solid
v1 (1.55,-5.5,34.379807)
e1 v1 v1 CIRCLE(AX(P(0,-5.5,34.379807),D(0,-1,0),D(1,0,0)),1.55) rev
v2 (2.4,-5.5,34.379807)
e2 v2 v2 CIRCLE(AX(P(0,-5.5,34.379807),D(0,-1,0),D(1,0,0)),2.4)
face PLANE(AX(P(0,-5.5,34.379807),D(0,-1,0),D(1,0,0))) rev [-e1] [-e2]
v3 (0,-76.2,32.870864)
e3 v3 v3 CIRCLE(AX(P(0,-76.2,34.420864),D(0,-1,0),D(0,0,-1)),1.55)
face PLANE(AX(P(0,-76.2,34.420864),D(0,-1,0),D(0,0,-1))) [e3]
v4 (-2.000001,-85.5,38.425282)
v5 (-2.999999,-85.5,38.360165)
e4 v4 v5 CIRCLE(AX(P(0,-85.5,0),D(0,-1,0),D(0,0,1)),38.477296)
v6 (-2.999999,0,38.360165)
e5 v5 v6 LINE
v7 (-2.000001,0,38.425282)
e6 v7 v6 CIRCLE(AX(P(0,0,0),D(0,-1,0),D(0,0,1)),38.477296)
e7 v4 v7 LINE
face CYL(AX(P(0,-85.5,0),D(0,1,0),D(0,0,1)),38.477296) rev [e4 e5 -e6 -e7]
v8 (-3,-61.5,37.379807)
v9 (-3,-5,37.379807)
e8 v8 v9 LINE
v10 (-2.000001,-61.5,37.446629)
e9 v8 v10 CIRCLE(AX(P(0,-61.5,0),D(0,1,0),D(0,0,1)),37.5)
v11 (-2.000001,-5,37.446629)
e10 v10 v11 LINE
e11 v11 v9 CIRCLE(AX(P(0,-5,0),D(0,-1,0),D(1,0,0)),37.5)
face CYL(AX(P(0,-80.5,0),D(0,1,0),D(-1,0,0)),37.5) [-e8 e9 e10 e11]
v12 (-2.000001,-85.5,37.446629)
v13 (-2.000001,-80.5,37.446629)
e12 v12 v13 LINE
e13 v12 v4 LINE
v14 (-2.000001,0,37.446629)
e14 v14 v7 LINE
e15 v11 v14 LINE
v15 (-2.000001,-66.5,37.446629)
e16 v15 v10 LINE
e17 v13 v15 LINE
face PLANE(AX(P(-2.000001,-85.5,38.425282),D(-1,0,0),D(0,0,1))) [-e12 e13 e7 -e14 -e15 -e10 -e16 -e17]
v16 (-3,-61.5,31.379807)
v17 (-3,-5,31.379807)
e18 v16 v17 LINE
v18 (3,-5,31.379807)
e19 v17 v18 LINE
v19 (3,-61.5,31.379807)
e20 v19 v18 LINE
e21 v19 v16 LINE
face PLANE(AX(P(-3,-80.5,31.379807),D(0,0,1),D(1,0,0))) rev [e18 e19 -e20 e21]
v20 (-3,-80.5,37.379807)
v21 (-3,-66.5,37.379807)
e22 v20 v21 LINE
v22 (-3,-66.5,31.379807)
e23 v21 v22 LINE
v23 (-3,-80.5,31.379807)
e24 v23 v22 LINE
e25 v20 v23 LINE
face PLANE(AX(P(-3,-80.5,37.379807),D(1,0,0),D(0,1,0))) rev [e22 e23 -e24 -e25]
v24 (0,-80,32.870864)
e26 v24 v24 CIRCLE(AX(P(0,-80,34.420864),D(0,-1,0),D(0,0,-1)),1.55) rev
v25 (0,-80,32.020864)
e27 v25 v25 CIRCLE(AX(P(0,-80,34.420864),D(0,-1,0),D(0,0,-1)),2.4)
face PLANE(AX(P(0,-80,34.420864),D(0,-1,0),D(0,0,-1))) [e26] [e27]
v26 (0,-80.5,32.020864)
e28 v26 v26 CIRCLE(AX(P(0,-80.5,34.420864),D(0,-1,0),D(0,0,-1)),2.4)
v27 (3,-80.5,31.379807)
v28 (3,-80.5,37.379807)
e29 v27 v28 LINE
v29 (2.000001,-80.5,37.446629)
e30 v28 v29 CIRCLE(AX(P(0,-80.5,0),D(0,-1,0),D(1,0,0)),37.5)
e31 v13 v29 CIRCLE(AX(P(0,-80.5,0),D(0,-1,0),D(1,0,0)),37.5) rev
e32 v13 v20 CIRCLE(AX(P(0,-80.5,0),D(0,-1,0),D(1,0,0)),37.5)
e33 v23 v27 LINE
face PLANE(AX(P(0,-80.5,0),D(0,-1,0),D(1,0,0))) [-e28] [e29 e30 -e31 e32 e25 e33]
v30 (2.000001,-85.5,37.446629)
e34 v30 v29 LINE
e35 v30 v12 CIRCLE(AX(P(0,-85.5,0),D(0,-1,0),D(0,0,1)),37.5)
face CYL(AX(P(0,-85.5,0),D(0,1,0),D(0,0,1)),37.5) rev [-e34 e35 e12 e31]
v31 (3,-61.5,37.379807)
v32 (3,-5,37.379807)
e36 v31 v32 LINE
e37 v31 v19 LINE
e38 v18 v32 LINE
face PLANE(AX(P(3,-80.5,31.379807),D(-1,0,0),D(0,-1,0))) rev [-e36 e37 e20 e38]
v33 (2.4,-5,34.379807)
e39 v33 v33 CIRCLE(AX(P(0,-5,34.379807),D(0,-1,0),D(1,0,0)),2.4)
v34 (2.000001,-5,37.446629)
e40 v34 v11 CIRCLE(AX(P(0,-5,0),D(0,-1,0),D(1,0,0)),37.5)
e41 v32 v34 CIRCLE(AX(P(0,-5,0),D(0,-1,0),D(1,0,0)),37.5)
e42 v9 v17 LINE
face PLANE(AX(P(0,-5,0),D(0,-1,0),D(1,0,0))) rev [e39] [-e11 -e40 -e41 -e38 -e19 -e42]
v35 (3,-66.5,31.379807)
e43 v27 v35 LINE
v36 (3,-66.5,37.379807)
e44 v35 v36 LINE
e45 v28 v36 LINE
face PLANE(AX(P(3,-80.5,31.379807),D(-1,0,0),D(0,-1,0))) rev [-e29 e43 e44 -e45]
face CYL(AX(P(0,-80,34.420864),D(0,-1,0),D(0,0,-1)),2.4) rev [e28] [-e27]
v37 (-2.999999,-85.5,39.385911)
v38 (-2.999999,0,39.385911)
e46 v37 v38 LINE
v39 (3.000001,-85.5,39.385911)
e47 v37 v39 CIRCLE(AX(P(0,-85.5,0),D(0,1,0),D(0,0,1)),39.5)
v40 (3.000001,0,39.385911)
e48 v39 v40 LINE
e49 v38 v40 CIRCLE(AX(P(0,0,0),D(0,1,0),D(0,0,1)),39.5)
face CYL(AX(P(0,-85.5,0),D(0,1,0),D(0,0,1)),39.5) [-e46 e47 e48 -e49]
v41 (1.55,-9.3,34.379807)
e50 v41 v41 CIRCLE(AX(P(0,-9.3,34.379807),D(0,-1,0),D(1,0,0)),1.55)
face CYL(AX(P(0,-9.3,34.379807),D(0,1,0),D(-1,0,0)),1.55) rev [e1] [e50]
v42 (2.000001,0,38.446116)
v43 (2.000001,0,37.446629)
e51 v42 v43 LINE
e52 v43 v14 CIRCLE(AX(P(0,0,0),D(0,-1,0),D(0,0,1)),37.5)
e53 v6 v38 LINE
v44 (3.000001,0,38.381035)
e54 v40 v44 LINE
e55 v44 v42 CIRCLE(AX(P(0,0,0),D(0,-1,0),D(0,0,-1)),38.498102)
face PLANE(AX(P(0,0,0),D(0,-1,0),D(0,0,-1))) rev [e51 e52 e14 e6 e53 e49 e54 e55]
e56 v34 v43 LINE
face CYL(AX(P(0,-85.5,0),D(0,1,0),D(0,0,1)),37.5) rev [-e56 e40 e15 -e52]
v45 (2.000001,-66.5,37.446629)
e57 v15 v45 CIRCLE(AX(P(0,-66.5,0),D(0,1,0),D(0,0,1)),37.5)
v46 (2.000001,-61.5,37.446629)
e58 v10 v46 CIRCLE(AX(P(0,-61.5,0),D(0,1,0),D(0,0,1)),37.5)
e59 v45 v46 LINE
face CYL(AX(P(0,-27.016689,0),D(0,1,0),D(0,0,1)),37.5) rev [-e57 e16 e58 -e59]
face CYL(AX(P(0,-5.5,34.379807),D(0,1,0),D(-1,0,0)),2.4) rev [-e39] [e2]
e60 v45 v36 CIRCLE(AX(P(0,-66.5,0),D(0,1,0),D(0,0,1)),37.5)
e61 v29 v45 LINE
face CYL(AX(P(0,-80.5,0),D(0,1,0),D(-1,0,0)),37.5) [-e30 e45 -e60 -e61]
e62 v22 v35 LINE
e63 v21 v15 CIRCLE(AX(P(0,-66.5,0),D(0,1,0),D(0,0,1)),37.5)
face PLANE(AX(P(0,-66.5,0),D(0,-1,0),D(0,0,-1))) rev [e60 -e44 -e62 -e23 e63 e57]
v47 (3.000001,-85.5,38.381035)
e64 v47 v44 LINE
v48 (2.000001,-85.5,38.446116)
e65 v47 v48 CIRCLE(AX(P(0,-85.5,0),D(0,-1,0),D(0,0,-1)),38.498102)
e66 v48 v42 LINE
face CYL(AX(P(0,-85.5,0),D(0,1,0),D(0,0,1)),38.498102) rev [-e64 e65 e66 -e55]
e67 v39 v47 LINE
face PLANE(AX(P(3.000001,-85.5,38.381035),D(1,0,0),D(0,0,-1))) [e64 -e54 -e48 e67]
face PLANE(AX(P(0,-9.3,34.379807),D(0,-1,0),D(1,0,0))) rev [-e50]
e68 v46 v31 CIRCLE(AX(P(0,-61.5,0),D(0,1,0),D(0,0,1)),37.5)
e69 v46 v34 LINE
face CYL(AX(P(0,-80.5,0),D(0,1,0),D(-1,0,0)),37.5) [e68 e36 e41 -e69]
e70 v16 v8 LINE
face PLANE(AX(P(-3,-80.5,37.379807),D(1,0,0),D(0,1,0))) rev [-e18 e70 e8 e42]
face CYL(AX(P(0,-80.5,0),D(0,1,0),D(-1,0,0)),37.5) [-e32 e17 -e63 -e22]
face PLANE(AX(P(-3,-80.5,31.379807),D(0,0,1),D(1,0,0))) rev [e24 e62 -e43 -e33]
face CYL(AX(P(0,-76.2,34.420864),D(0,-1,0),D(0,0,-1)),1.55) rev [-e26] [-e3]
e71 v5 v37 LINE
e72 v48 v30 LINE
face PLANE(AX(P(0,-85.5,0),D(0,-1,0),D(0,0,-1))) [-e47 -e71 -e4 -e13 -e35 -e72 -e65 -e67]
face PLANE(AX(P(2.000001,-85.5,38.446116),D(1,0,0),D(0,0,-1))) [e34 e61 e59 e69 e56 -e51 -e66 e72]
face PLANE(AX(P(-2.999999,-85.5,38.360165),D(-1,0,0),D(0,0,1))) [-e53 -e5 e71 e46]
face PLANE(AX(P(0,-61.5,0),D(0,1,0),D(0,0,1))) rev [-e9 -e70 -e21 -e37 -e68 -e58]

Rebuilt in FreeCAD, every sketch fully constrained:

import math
import FreeCAD as App
import Part
import Sketcher
Q = App.Units.Quantity

doc = App.newDocument("Part")
body = doc.addObject("PartDesign::Body", "Body")

# Sketch on XZ plane
sketch1 = body.newObject("Sketcher::SketchObject", "Sketch")
sketch1.AttachmentSupport = (doc.getObject("XZ_Plane"), [""])
sketch1.MapMode = "FlatFace"
sketch1.AttachmentOffset = App.Placement(App.Vector(0, 0, 5), App.Rotation())
sketch1.addGeometry([
    Part.LineSegment(App.Vector(-3, 37.379807, 0), App.Vector(-3, 31.379807, 0)),
    Part.LineSegment(App.Vector(-3, 31.379807, 0), App.Vector(3, 31.379807, 0)),
    Part.LineSegment(App.Vector(3, 31.379807, 0), App.Vector(3, 37.379807, 0)),
    Part.ArcOfCircle(Part.Circle(App.Vector(0, 0, 0), App.Vector(0, 0, 1), 37.5), math.radians(85.411434), math.radians(94.588566)),
], False)
sketch1.addConstraint([
    Sketcher.Constraint("Coincident", 0, 2, 1, 1),
    Sketcher.Constraint("Coincident", 1, 2, 2, 1),
    Sketcher.Constraint("Coincident", 2, 2, 3, 1),
    Sketcher.Constraint("Coincident", 3, 2, 0, 1),
    Sketcher.Constraint("Vertical", 0),
    Sketcher.Constraint("Horizontal", 1),
    Sketcher.Constraint("Vertical", 2),
    Sketcher.Constraint("Coincident", 3, 3, -1, 1),
    Sketcher.Constraint("Horizontal", 2, 2, 3, 2),
    Sketcher.Constraint("Equal", 1, 0),
    Sketcher.Constraint("Radius", 3, Q("37.5 mm")),
    Sketcher.Constraint("DistanceX", 1, 1, 1, 2, Q("6 mm")),
])
pad1 = body.newObject("PartDesign::Pad", "Pad")
pad1.Profile = sketch1
pad1.Length = 75.5

# Sketch on XZ plane
sketch2 = body.newObject("Sketcher::SketchObject", "Sketch001")
sketch2.AttachmentSupport = (doc.getObject("XZ_Plane"), [""])
sketch2.MapMode = "FlatFace"
sketch2.addGeometry([
    Part.LineSegment(App.Vector(-2.999999, 38.360165, 0), App.Vector(-2.999999, 39.385911, 0)),  # 0
    Part.ArcOfCircle(Part.Circle(App.Vector(0, 0, 0), App.Vector(0, 0, 1), 39.5), math.radians(85.644226), math.radians(94.355771)),  # 1
    Part.LineSegment(App.Vector(3.000001, 39.385911, 0), App.Vector(3.000001, 38.381035, 0)),  # 2
    Part.ArcOfCircle(Part.Circle(App.Vector(0, -0.000001, 0), App.Vector(0, 0, 1), 38.498103), math.radians(85.530641), math.radians(87.022107)),  # 3
    Part.LineSegment(App.Vector(2.000001, 38.446116, 0), App.Vector(2.000001, 37.446629, 0)),  # 4
    Part.ArcOfCircle(Part.Circle(App.Vector(0, 0, 0), App.Vector(0, 0, 1), 37.5), math.radians(86.942773), math.radians(93.057227)),  # 5
    Part.LineSegment(App.Vector(-2.000001, 37.446629, 0), App.Vector(-2.000001, 38.425282, 0)),  # 6
    Part.ArcOfCircle(Part.Circle(App.Vector(0.000001, -0.000008, 0), App.Vector(0, 0, 1), 38.477303), math.radians(92.979505), math.radians(94.471777)),  # 7
], False)
sketch2.addConstraint([
    Sketcher.Constraint("Coincident", 0, 2, 1, 2),
    Sketcher.Constraint("Coincident", 1, 1, 2, 1),
    Sketcher.Constraint("Coincident", 2, 2, 3, 1),
    Sketcher.Constraint("Coincident", 3, 2, 4, 1),
    Sketcher.Constraint("Coincident", 4, 2, 5, 1),
    Sketcher.Constraint("Coincident", 5, 2, 6, 1),
    Sketcher.Constraint("Coincident", 6, 2, 7, 1),
    Sketcher.Constraint("Coincident", 7, 2, 0, 1),
    Sketcher.Constraint("Vertical", 0),
    Sketcher.Constraint("Vertical", 2),
    Sketcher.Constraint("Vertical", 4),
    Sketcher.Constraint("Vertical", 6),
    Sketcher.Constraint("Coincident", 1, 3, -1, 1),
    Sketcher.Constraint("Coincident", 3, 3, -1, 1),
    Sketcher.Constraint("Coincident", 5, 3, -1, 1),
    Sketcher.Constraint("Coincident", 7, 3, -1, 1),
    Sketcher.Constraint("Horizontal", 0, 2, 1, 1),
    Sketcher.Constraint("Horizontal", 4, 2, 5, 2),
    Sketcher.Constraint("Radius", 1, Q("39.5 mm")),
    Sketcher.Constraint("Radius", 5, Q("37.5 mm")),
    Sketcher.Constraint("DistanceX", 0, 2, -1, 1, Q("2.999999 mm")),
    Sketcher.Constraint("DistanceX", -1, 1, 3, 2, Q("2.000001 mm")),
    Sketcher.Constraint("Radius", 3, Q("38.498103 mm")),
    Sketcher.Constraint("Radius", 7, Q("38.477303 mm")),
])
pad2 = body.newObject("PartDesign::Pad", "Pad001")
pad2.Profile = sketch2
pad2.Length = 85.5

# Sketch on YZ plane
sketch3 = body.newObject("Sketcher::SketchObject", "Sketch002")
sketch3.AttachmentSupport = (doc.getObject("YZ_Plane"), [""])
sketch3.MapMode = "FlatFace"
sketch3.addGeometry([
    Part.LineSegment(App.Vector(-61.5, 37.5, 0), App.Vector(-66.5, 37.5, 0)),
    Part.LineSegment(App.Vector(-66.5, 37.5, 0), App.Vector(-66.5, 0, 0)),
    Part.LineSegment(App.Vector(-66.5, 0, 0), App.Vector(-61.5, 0, 0)),
    Part.LineSegment(App.Vector(-61.5, 0, 0), App.Vector(-61.5, 37.5, 0)),
], False)
sketch3.addConstraint([
    Sketcher.Constraint("Coincident", 0, 2, 1, 1),
    Sketcher.Constraint("Coincident", 1, 2, 2, 1),
    Sketcher.Constraint("Coincident", 2, 2, 3, 1),
    Sketcher.Constraint("Coincident", 3, 2, 0, 1),
    Sketcher.Constraint("Horizontal", 0),
    Sketcher.Constraint("Vertical", 1),
    Sketcher.Constraint("Horizontal", 2),
    Sketcher.Constraint("Vertical", 3),
    Sketcher.Constraint("PointOnObject", 1, 2, -1),
    Sketcher.Constraint("DistanceX", 0, 2, 0, 1, Q("5 mm")),
    Sketcher.Constraint("DistanceY", 1, 2, 1, 1, Q("37.5 mm")),
    Sketcher.Constraint("DistanceX", 0, 2, -1, 1, Q("66.5 mm")),
])
groove = body.newObject("PartDesign::Groove", "Groove")
groove.Profile = sketch3
groove.ReferenceAxis = (sketch3, ["H_Axis"])
groove.Angle = 360

# Sketch on XZ plane
sketch4 = body.newObject("Sketcher::SketchObject", "Sketch003")
sketch4.AttachmentSupport = (doc.getObject("XZ_Plane"), [""])
sketch4.MapMode = "FlatFace"
sketch4.AttachmentOffset = App.Placement(App.Vector(0, 0, 80.5), App.Rotation())
sketch4.addGeometry(Part.Circle(App.Vector(0, 34.420864, 0), App.Vector(0, 0, 1), 1.55), False)
sketch4.addConstraint([
    Sketcher.Constraint("PointOnObject", 0, 3, -2),
    Sketcher.Constraint("Diameter", 0, Q("3.1 mm")),
    Sketcher.Constraint("DistanceY", -1, 1, 0, 3, Q("34.420864 mm")),
])
pocket1 = body.newObject("PartDesign::Pocket", "Pocket")
pocket1.Profile = sketch4
pocket1.Length = 4.3

# Sketch on XZ plane
sketch5 = body.newObject("Sketcher::SketchObject", "Sketch004")
sketch5.AttachmentSupport = (doc.getObject("XZ_Plane"), [""])
sketch5.MapMode = "FlatFace"
sketch5.AttachmentOffset = App.Placement(App.Vector(0, 0, 80.5), App.Rotation())
sketch5.addGeometry(Part.Circle(App.Vector(0, 34.420864, 0), App.Vector(0, 0, 1), 2.4), False)
sketch5.addConstraint([
    Sketcher.Constraint("PointOnObject", 0, 3, -2),
    Sketcher.Constraint("Diameter", 0, Q("4.8 mm")),
    Sketcher.Constraint("DistanceY", -1, 1, 0, 3, Q("34.420864 mm")),
])
pocket2 = body.newObject("PartDesign::Pocket", "Pocket001")
pocket2.Profile = sketch5
pocket2.Length = 0.5

# Sketch on XZ plane
sketch6 = body.newObject("Sketcher::SketchObject", "Sketch005")
sketch6.AttachmentSupport = (doc.getObject("XZ_Plane"), [""])
sketch6.MapMode = "FlatFace"
sketch6.AttachmentOffset = App.Placement(App.Vector(0, 0, 5), App.Rotation())
sketch6.addGeometry(Part.Circle(App.Vector(0, 34.379807, 0), App.Vector(0, 0, 1), 2.4), False)
sketch6.addConstraint([
    Sketcher.Constraint("PointOnObject", 0, 3, -2),
    Sketcher.Constraint("Diameter", 0, Q("4.8 mm")),
    Sketcher.Constraint("DistanceY", -1, 1, 0, 3, Q("34.379807 mm")),
])
pocket3 = body.newObject("PartDesign::Pocket", "Pocket002")
pocket3.Profile = sketch6
pocket3.Length = 0.5
pocket3.Reversed = True

# Sketch on XZ plane
sketch7 = body.newObject("Sketcher::SketchObject", "Sketch006")
sketch7.AttachmentSupport = (doc.getObject("XZ_Plane"), [""])
sketch7.MapMode = "FlatFace"
sketch7.AttachmentOffset = App.Placement(App.Vector(0, 0, 5), App.Rotation())
sketch7.addGeometry(Part.Circle(App.Vector(0, 34.379807, 0), App.Vector(0, 0, 1), 1.55), False)
sketch7.addConstraint([
    Sketcher.Constraint("PointOnObject", 0, 3, -2),
    Sketcher.Constraint("Diameter", 0, Q("3.1 mm")),
    Sketcher.Constraint("DistanceY", -1, 1, 0, 3, Q("34.379807 mm")),
])
pocket4 = body.newObject("PartDesign::Pocket", "Pocket003")
pocket4.Profile = sketch7
pocket4.Length = 4.3
pocket4.Reversed = True

doc.recompute()
